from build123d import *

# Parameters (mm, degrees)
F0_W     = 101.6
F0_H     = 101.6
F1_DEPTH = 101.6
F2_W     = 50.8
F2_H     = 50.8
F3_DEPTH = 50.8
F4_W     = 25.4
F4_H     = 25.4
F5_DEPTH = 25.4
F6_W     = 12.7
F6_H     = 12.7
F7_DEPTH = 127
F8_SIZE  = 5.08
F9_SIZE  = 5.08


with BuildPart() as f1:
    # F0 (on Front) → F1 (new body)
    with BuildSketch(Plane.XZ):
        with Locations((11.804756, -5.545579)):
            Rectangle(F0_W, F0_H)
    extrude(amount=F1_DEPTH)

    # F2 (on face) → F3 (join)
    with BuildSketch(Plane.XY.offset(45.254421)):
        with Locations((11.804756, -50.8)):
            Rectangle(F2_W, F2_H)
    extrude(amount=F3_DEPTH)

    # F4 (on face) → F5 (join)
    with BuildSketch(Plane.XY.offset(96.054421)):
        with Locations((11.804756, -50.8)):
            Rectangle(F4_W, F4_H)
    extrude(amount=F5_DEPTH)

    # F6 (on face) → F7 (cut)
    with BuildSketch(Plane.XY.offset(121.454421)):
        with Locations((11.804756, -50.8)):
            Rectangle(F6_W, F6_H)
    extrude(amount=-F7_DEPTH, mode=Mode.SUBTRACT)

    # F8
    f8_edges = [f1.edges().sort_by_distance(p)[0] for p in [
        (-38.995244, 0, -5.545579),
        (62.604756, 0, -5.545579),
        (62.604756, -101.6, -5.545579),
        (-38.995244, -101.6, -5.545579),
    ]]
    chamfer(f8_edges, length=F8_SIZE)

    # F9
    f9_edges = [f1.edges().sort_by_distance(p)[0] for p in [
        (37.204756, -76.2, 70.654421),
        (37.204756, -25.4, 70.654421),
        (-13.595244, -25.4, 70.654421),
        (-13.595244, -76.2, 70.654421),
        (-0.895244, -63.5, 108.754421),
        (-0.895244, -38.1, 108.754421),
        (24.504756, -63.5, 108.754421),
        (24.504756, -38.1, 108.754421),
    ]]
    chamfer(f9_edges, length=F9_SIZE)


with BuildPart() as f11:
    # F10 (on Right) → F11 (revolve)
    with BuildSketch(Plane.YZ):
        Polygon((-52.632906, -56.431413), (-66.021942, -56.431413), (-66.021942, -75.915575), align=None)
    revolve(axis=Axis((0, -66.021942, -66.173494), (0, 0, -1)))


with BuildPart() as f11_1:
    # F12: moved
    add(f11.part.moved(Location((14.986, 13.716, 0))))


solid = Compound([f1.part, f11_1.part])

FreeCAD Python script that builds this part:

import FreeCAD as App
import Part
import Sketcher
Q = App.Units.Quantity


def edges_at(feature, points):
    """Names of the edges that pass closest to the given points."""
    edges = feature.Shape.Edges
    near = lambda p: min(range(len(edges)), key=lambda i: edges[i].distToShape(Part.Vertex(*p))[0])
    return sorted({f"Edge{near(p) + 1}" for p in points})


def add_polygon(sketch, points):
    """Adds a closed chain of lines whose ends are joined by coincident constraints."""
    first, n = sketch.GeometryCount, len(points)
    for a, b in zip(points, points[1:] + points[:1]):
        sketch.addGeometry(Part.LineSegment(App.Vector(*a, 0), App.Vector(*b, 0)), False)
    for i in range(n):
        sketch.addConstraint(Sketcher.Constraint("Coincident", first + i, 2, first + (i + 1) % n, 1))

doc = App.newDocument("Part")
body = doc.addObject("PartDesign::Body", "Body")

# Sketch on XZ plane
sketch1 = body.newObject("Sketcher::SketchObject", "Sketch")
sketch1.AttachmentSupport = (doc.getObject("XZ_Plane"), [""])
sketch1.MapMode = "FlatFace"
add_polygon(sketch1, [(-39, 45), (-39, -56), (63, -56), (63, 45)])  # lines 0-3
sketch1.addConstraint(Sketcher.Constraint("Vertical", 0))
sketch1.addConstraint(Sketcher.Constraint("Horizontal", 1))
sketch1.addConstraint(Sketcher.Constraint("Vertical", 2))
sketch1.addConstraint(Sketcher.Constraint("Horizontal", 3))
sketch1.addConstraint(Sketcher.Constraint("Equal", 3, 0))
sketch1.addConstraint(Sketcher.Constraint("DistanceX", 1, 1, 1, 2, Q("4 in")))
sketch1.addConstraint(Sketcher.Constraint("DistanceY", 0, 2, -1, 1, 56.345579))
sketch1.addConstraint(Sketcher.Constraint("DistanceX", 0, 2, -1, 1, 38.995244))
pad1 = body.newObject("PartDesign::Pad", "Pad")
pad1.Profile = sketch1
pad1.Length = Q("4 in")

# Sketch on XY plane
sketch2 = body.newObject("Sketcher::SketchObject", "Sketch001")
sketch2.AttachmentSupport = (doc.getObject("XY_Plane"), [""])
sketch2.MapMode = "FlatFace"
sketch2.AttachmentOffset = App.Placement(App.Vector(0, 0, 45.254421), App.Rotation())
add_polygon(sketch2, [(-14, -25), (-14, -76), (37, -76), (37, -25)])  # lines 0-3
sketch2.addConstraint(Sketcher.Constraint("Vertical", 0))
sketch2.addConstraint(Sketcher.Constraint("Horizontal", 1))
sketch2.addConstraint(Sketcher.Constraint("Vertical", 2))
sketch2.addConstraint(Sketcher.Constraint("Horizontal", 3))
sketch2.addConstraint(Sketcher.Constraint("Equal", 3, 0))
sketch2.addConstraint(Sketcher.Constraint("DistanceX", 1, 1, 1, 2, Q("2 in")))
sketch2.addConstraint(Sketcher.Constraint("DistanceY", 0, 2, -1, 1, Q("3 in")))
sketch2.addConstraint(Sketcher.Constraint("DistanceX", 0, 2, -1, 1, 13.595244))
pad2 = body.newObject("PartDesign::Pad", "Pad001")
pad2.Profile = sketch2
pad2.Length = Q("2 in")

# Sketch on XY plane
sketch3 = body.newObject("Sketcher::SketchObject", "Sketch002")
sketch3.AttachmentSupport = (doc.getObject("XY_Plane"), [""])
sketch3.MapMode = "FlatFace"
sketch3.AttachmentOffset = App.Placement(App.Vector(0, 0, 96.054421), App.Rotation())
add_polygon(sketch3, [(-1, -38), (-1, -64), (25, -64), (25, -38)])  # lines 0-3
sketch3.addConstraint(Sketcher.Constraint("Vertical", 0))
sketch3.addConstraint(Sketcher.Constraint("Horizontal", 1))
sketch3.addConstraint(Sketcher.Constraint("Vertical", 2))
sketch3.addConstraint(Sketcher.Constraint("Horizontal", 3))
sketch3.addConstraint(Sketcher.Constraint("Equal", 3, 0))
sketch3.addConstraint(Sketcher.Constraint("DistanceX", 1, 1, 1, 2, Q("1 in")))
sketch3.addConstraint(Sketcher.Constraint("DistanceY", 0, 2, -1, 1, Q("2.5 in")))
sketch3.addConstraint(Sketcher.Constraint("DistanceX", 0, 2, -1, 1, 0.895244))
pad3 = body.newObject("PartDesign::Pad", "Pad002")
pad3.Profile = sketch3
pad3.Length = Q("1 in")

# Sketch on XY plane
sketch4 = body.newObject("Sketcher::SketchObject", "Sketch003")
sketch4.AttachmentSupport = (doc.getObject("XY_Plane"), [""])
sketch4.MapMode = "FlatFace"
sketch4.AttachmentOffset = App.Placement(App.Vector(0, 0, 121.454421), App.Rotation())
add_polygon(sketch4, [(5, -44), (5, -57), (18, -57), (18, -44)])  # lines 0-3
sketch4.addConstraint(Sketcher.Constraint("Vertical", 0))
sketch4.addConstraint(Sketcher.Constraint("Horizontal", 1))
sketch4.addConstraint(Sketcher.Constraint("Vertical", 2))
sketch4.addConstraint(Sketcher.Constraint("Horizontal", 3))
sketch4.addConstraint(Sketcher.Constraint("Equal", 3, 0))
sketch4.addConstraint(Sketcher.Constraint("DistanceX", 1, 1, 1, 2, Q("0.5 in")))
sketch4.addConstraint(Sketcher.Constraint("DistanceY", 0, 2, -1, 1, Q("2.25 in")))
sketch4.addConstraint(Sketcher.Constraint("DistanceX", -1, 1, 0, 2, 5.454756))
pocket1 = body.newObject("PartDesign::Pocket", "Pocket")
pocket1.Profile = sketch4
pocket1.Length = Q("5 in")
doc.recompute()

chamfer = body.newObject("PartDesign::Chamfer", "Chamfer")
chamfer.Base = (pocket1, edges_at(pocket1, [
    (-38.995, 0, -5.546),
    (62.605, 0, -5.546),
    (62.605, -101.6, -5.546),
    (-38.995, -101.6, -5.546),
]))
chamfer.Size = Q("0.2 in")
doc.recompute()

chamfer2 = body.newObject("PartDesign::Chamfer", "Chamfer001")
chamfer2.Base = (chamfer, edges_at(chamfer, [
    (37.205, -76.2, 70.654),
    (37.205, -25.4, 70.654),
    (-13.595, -25.4, 70.654),
    (-13.595, -76.2, 70.654),
    (-0.895, -63.5, 108.754),
    (-0.895, -38.1, 108.754),
    (24.505, -63.5, 108.754),
    (24.505, -38.1, 108.754),
]))
chamfer2.Size = Q("0.2 in")
body2 = doc.addObject("PartDesign::Body", "Body001")

# Sketch on YZ plane
sketch5 = body2.newObject("Sketcher::SketchObject", "Sketch004")
sketch5.AttachmentSupport = (doc.getObject("YZ_Plane001"), [""])
sketch5.MapMode = "FlatFace"
add_polygon(sketch5, [(-53, -56), (-66, -56), (-66, -76)])  # lines 0-2
sketch5.addGeometry(Part.LineSegment(App.Vector(-66, -56, 0), App.Vector(-66, -76, 0)), True)  # axis
sketch5.addConstraint(Sketcher.Constraint("Horizontal", 0))
sketch5.addConstraint(Sketcher.Constraint("Vertical", 1))
sketch5.addConstraint(Sketcher.Constraint("Vertical", 3))
sketch5.addConstraint(Sketcher.Constraint("Coincident", 3, 1, 0, 2))
sketch5.addConstraint(Sketcher.Constraint("Equal", 1, 3))
sketch5.addConstraint(Sketcher.Constraint("Distance", 2, 23.641042))
sketch5.addConstraint(Sketcher.Constraint("DistanceX", 0, 2, 0, 1, 13.389036))
sketch5.addConstraint(Sketcher.Constraint("DistanceX", 0, 2, -1, 1, 66.021942))
sketch5.addConstraint(Sketcher.Constraint("DistanceY", 0, 2, -1, 1, 56.431413))
revolution = body2.newObject("PartDesign::Revolution", "Revolution")
revolution.Profile = sketch5
revolution.ReferenceAxis = (sketch5, ["Axis0"])
revolution.Angle = 360
body3 = doc.addObject("PartDesign::Body", "Body002")
doc.recompute()

body2.Placement = App.Placement(App.Vector(14.986, 13.716, 0), App.Rotation(App.Vector(0, 0, 1), 0))
boolean = body3.newObject("PartDesign::Boolean", "Boolean")
boolean.Type = "Fuse"
boolean.addObjects([body2])

doc.recompute()
